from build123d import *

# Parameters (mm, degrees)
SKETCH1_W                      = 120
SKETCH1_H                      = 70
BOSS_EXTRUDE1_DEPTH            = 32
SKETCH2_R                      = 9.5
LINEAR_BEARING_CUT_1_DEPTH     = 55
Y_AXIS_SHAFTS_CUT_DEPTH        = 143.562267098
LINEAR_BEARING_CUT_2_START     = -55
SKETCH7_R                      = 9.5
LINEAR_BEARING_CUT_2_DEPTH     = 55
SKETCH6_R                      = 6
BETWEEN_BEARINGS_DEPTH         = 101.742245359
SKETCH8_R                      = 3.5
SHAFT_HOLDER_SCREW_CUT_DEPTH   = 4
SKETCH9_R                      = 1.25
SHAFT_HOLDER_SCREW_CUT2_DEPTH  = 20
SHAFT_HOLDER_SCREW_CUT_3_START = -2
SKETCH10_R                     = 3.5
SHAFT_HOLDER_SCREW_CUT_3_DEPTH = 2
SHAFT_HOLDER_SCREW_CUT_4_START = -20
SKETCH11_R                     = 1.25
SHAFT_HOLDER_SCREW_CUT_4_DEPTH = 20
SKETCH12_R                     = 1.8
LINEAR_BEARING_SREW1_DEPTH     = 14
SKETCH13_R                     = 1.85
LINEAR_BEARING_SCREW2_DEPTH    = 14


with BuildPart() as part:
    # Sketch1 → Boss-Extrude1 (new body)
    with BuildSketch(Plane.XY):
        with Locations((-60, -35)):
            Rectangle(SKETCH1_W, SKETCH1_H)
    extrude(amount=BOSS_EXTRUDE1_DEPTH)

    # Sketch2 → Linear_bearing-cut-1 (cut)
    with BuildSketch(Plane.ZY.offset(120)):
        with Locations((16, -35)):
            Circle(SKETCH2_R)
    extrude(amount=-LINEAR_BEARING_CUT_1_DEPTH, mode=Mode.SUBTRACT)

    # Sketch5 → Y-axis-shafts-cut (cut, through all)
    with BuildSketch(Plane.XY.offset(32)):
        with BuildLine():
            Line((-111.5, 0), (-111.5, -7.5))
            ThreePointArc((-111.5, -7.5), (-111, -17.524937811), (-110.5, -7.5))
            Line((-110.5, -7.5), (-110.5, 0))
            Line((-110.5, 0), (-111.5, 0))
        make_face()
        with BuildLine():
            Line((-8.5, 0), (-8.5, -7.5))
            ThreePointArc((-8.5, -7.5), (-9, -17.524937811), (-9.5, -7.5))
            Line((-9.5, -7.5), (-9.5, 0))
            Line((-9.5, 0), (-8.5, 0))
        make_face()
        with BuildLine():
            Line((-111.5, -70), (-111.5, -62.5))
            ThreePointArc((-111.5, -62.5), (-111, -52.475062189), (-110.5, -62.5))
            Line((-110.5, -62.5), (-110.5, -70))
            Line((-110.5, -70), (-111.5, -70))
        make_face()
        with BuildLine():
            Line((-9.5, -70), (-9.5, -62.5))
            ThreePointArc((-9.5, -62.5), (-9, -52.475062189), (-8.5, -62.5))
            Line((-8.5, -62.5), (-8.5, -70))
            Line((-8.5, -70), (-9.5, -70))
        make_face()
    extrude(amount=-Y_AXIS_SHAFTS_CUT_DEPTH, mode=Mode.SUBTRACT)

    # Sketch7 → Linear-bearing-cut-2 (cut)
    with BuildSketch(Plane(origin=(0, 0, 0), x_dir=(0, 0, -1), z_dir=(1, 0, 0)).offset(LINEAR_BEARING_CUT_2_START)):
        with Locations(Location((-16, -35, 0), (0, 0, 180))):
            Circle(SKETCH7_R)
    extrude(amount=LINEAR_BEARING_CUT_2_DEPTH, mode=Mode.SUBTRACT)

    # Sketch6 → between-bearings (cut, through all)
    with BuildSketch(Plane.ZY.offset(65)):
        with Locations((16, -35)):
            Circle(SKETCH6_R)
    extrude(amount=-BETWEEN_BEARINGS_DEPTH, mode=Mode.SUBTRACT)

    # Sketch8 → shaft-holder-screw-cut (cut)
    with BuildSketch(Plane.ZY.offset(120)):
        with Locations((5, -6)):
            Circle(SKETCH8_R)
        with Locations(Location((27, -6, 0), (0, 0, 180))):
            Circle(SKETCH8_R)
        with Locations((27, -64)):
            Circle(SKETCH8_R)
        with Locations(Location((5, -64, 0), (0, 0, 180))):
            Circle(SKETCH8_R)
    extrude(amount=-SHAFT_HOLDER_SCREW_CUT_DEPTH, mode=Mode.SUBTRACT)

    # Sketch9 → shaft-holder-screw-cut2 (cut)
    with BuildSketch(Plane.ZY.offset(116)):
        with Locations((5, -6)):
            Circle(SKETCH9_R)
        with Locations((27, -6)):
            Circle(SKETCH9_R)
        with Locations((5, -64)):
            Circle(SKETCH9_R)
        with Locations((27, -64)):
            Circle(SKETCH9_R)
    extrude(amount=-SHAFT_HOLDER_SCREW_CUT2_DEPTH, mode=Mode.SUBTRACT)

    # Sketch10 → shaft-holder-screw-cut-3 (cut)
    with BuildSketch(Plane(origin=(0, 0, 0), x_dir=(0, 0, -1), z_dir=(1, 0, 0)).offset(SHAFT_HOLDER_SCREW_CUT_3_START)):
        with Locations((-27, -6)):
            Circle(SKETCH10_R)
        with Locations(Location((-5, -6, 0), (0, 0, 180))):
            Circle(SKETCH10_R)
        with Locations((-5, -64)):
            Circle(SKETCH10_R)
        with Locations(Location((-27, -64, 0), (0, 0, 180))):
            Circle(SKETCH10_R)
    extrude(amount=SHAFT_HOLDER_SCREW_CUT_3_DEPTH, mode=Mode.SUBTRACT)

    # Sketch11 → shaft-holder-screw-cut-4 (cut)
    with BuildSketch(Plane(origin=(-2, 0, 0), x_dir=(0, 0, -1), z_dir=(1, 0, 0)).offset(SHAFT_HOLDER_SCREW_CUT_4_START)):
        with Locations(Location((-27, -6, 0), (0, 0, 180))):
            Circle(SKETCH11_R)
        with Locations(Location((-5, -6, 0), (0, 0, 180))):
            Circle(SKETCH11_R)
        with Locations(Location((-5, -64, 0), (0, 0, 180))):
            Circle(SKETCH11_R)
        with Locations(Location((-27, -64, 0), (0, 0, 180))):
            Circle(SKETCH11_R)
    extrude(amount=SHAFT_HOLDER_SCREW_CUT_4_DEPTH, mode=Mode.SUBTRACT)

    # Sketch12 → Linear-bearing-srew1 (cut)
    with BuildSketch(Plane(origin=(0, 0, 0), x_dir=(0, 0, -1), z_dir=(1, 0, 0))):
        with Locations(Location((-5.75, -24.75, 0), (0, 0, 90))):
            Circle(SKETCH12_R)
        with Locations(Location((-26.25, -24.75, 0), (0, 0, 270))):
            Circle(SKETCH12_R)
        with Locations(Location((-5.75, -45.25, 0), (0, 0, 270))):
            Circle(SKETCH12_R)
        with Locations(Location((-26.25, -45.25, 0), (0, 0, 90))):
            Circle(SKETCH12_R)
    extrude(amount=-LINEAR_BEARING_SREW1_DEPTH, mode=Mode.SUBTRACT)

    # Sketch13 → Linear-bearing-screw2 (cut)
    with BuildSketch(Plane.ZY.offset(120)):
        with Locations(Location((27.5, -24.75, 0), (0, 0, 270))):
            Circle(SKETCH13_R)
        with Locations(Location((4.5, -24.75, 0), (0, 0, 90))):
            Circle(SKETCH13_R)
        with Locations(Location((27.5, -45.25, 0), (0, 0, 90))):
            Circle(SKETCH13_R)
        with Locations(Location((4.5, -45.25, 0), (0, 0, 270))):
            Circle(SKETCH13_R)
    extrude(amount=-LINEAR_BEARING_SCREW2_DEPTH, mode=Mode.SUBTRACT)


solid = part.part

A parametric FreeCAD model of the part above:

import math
import FreeCAD as App
import Part
import Sketcher
from FreeCAD import Vector
Q = App.Units.Quantity

doc = App.newDocument("Part")
body = doc.addObject("PartDesign::Body", "Body")

# Sketch on XY plane
sketch1 = doc.addObject("Sketcher::SketchObject", "Sketch")
body.addObject(sketch1)
sketch1.AttachmentSupport = (doc.XY_Plane, [""])
sketch1.MapMode = "FlatFace"
sketch1.addGeometry([
    Part.LineSegment(Vector(-120, 0, 0), Vector(-120, -70, 0)),
    Part.LineSegment(Vector(-120, -70, 0), Vector(0, -70, 0)),
    Part.LineSegment(Vector(0, -70, 0), Vector(0, 0, 0)),
    Part.LineSegment(Vector(0, 0, 0), Vector(-120, 0, 0)),
], False)
sketch1.addConstraint([
    Sketcher.Constraint("Coincident", 0, 2, 1, 1),
    Sketcher.Constraint("Coincident", 1, 2, 2, 1),
    Sketcher.Constraint("Coincident", 2, 2, 3, 1),
    Sketcher.Constraint("Coincident", 3, 2, 0, 1),
    Sketcher.Constraint("Vertical", 0),
    Sketcher.Constraint("Horizontal", 1),
    Sketcher.Constraint("Vertical", 2),
    Sketcher.Constraint("Horizontal", 3),
    Sketcher.Constraint("Coincident", 2, 2, -1, 1),
    Sketcher.Constraint("DistanceX", 1, 1, 1, 2, Q("120 mm")),
    Sketcher.Constraint("DistanceY", 0, 2, 0, 1, Q("70 mm")),
])
pad1 = doc.addObject("PartDesign::Pad", "Pad")
body.addObject(pad1)
pad1.Profile = sketch1
pad1.Length = 32

# Sketch on YZ plane
sketch2 = doc.addObject("Sketcher::SketchObject", "Sketch001")
body.addObject(sketch2)
sketch2.AttachmentSupport = (doc.YZ_Plane, [""])
sketch2.MapMode = "FlatFace"
sketch2.AttachmentOffset = App.Placement(Vector(0, 0, -120), App.Rotation())
sketch2.addGeometry(Part.Circle(Vector(-35, 16, 0), Vector(0, 0, 1), 10), False)
sketch2.addConstraint([
    Sketcher.Constraint("Diameter", 0, Q("19 mm")),
    Sketcher.Constraint("DistanceX", 0, 3, -1, 1, Q("35 mm")),
    Sketcher.Constraint("DistanceY", -1, 1, 0, 3, Q("16 mm")),
])
pocket1 = doc.addObject("PartDesign::Pocket", "Pocket")
body.addObject(pocket1)
pocket1.Profile = sketch2
pocket1.Length = 55
pocket1.Reversed = True

# Sketch on XY plane
sketch3 = doc.addObject("Sketcher::SketchObject", "Sketch002")
body.addObject(sketch3)
sketch3.AttachmentSupport = (doc.XY_Plane, [""])
sketch3.MapMode = "FlatFace"
sketch3.AttachmentOffset = App.Placement(Vector(0, 0, 32), App.Rotation())
sketch3.addGeometry([
    Part.LineSegment(Vector(-111.5, 0, 0), Vector(-111.5, -7.5, 0)),  # 0
    Part.ArcOfCircle(Part.Circle(Vector(-111, -12.5, 0), Vector(0, 0, 1), 5), math.radians(96), math.radians(444)),  # 1
    Part.LineSegment(Vector(-110.5, -7.5, 0), Vector(-110.5, 0, 0)),  # 2
    Part.LineSegment(Vector(-110.5, 0, 0), Vector(-111.5, 0, 0)),  # 3
    Part.LineSegment(Vector(-8.5, -7.5, 0), Vector(-8.5, 0, 0)),  # 4
    Part.LineSegment(Vector(-8.5, 0, 0), Vector(-9.5, 0, 0)),  # 5
    Part.LineSegment(Vector(-9.5, 0, 0), Vector(-9.5, -7.5, 0)),  # 6
    Part.ArcOfCircle(Part.Circle(Vector(-9, -12.5, 0), Vector(0, 0, 1), 5), math.radians(96), math.radians(444)),  # 7
    Part.LineSegment(Vector(-111.5, -62.5, 0), Vector(-111.5, -70, 0)),  # 8
    Part.LineSegment(Vector(-111.5, -70, 0), Vector(-110.5, -70, 0)),  # 9
    Part.LineSegment(Vector(-110.5, -70, 0), Vector(-110.5, -62.5, 0)),  # 10
    Part.ArcOfCircle(Part.Circle(Vector(-111, -57.5, 0), Vector(0, 0, 1), 5), math.radians(-84), math.radians(264)),  # 11
    Part.LineSegment(Vector(-9.5, -62.5, 0), Vector(-9.5, -70, 0)),  # 12
    Part.LineSegment(Vector(-9.5, -70, 0), Vector(-8.5, -70, 0)),  # 13
    Part.LineSegment(Vector(-8.5, -70, 0), Vector(-8.5, -62.5, 0)),  # 14
    Part.ArcOfCircle(Part.Circle(Vector(-9, -57.5, 0), Vector(0, 0, 1), 5), math.radians(-84), math.radians(264)),  # 15
], False)
sketch3.addConstraint([
    Sketcher.Constraint("Coincident", 0, 2, 1, 1),
    Sketcher.Constraint("Coincident", 1, 2, 2, 1),
    Sketcher.Constraint("Coincident", 2, 2, 3, 1),
    Sketcher.Constraint("Coincident", 3, 2, 0, 1),
    Sketcher.Constraint("Coincident", 4, 2, 5, 1),
    Sketcher.Constraint("Coincident", 5, 2, 6, 1),
    Sketcher.Constraint("Coincident", 6, 2, 7, 1),
    Sketcher.Constraint("Coincident", 7, 2, 4, 1),
    Sketcher.Constraint("Coincident", 8, 2, 9, 1),
    Sketcher.Constraint("Coincident", 9, 2, 10, 1),
    Sketcher.Constraint("Coincident", 10, 2, 11, 1),
    Sketcher.Constraint("Coincident", 11, 2, 8, 1),
    Sketcher.Constraint("Coincident", 12, 2, 13, 1),
    Sketcher.Constraint("Coincident", 13, 2, 14, 1),
    Sketcher.Constraint("Coincident", 14, 2, 15, 1),
    Sketcher.Constraint("Coincident", 15, 2, 12, 1),
    Sketcher.Constraint("Vertical", 0),
    Sketcher.Constraint("Vertical", 2),
    Sketcher.Constraint("Horizontal", 3),
    Sketcher.Constraint("Vertical", 4),
    Sketcher.Constraint("Horizontal", 5),
    Sketcher.Constraint("Vertical", 6),
    Sketcher.Constraint("Vertical", 8),
    Sketcher.Constraint("Horizontal", 9),
    Sketcher.Constraint("Vertical", 10),
    Sketcher.Constraint("Vertical", 12),
    Sketcher.Constraint("Horizontal", 13),
    Sketcher.Constraint("Vertical", 14),
    Sketcher.Constraint("Equal", 1, 7),
    Sketcher.Constraint("Equal", 7, 11),
    Sketcher.Constraint("Equal", 11, 15),
    Sketcher.Constraint("PointOnObject", 2, 2, -1),
    Sketcher.Constraint("PointOnObject", 4, 2, -1),
    Sketcher.Constraint("Horizontal", 1, 3, 7, 3),
    Sketcher.Constraint("Horizontal", 11, 3, 15, 3),
    Sketcher.Constraint("Horizontal", 0, 2, 1, 2),
    Sketcher.Constraint("Horizontal", 1, 2, 6, 2),
    Sketcher.Constraint("Horizontal", 6, 2, 7, 2),
    Sketcher.Constraint("Horizontal", 10, 2, 11, 2),
    Sketcher.Constraint("Horizontal", 9, 2, 12, 2),
    Sketcher.Constraint("Horizontal", 11, 2, 14, 2),
    Sketcher.Constraint("Horizontal", 14, 2, 15, 2),
    Sketcher.Constraint("Vertical", 1, 3, 11, 3),
    Sketcher.Constraint("Vertical", 7, 3, 15, 3),
    Sketcher.Constraint("Vertical", 3, 2, 8, 2),
    Sketcher.Constraint("Equal", 6, 8),
    Sketcher.Constraint("DistanceX", 3, 2, 3, 1, Q("1 mm")),
    Sketcher.Constraint("DistanceY", 0, 2, 0, 1, Q("7.5 mm")),
    Sketcher.Constraint("DistanceX", 1, 3, -1, 1, Q("111 mm")),
    Sketcher.Constraint("DistanceX", 7, 3, -1, 1, Q("9 mm")),
    Sketcher.Constraint("DistanceY", 8, 2, -1, 1, Q("70 mm")),
    Sketcher.Constraint("DistanceY", 11, 3, 1, 3, Q("45 mm")),
])
pocket2 = doc.addObject("PartDesign::Pocket", "Pocket001")
body.addObject(pocket2)
pocket2.Profile = sketch3
pocket2.Type = "ThroughAll"

# Sketch on YZ plane
sketch4 = doc.addObject("Sketcher::SketchObject", "Sketch003")
body.addObject(sketch4)
sketch4.AttachmentSupport = (doc.YZ_Plane, [""])
sketch4.MapMode = "FlatFace"
sketch4.AttachmentOffset = App.Placement(Vector(0, 0, -55), App.Rotation())
sketch4.addGeometry(Part.Circle(Vector(-35, 16, 0), Vector(0, 0, 1), 10), False)
sketch4.addConstraint([
    Sketcher.Constraint("Diameter", 0, Q("19 mm")),
    Sketcher.Constraint("DistanceX", 0, 3, -1, 1, Q("35 mm")),
    Sketcher.Constraint("DistanceY", -1, 1, 0, 3, Q("16 mm")),
])
pocket3 = doc.addObject("PartDesign::Pocket", "Pocket002")
body.addObject(pocket3)
pocket3.Profile = sketch4
pocket3.Length = 55
pocket3.Reversed = True

# Sketch on YZ plane
sketch5 = doc.addObject("Sketcher::SketchObject", "Sketch004")
body.addObject(sketch5)
sketch5.AttachmentSupport = (doc.YZ_Plane, [""])
sketch5.MapMode = "FlatFace"
sketch5.AttachmentOffset = App.Placement(Vector(0, 0, -65), App.Rotation())
sketch5.addGeometry(Part.Circle(Vector(-35, 16, 0), Vector(0, 0, 1), 6), False)
sketch5.addConstraint([
    Sketcher.Constraint("Diameter", 0, Q("12 mm")),
    Sketcher.Constraint("DistanceX", 0, 3, -1, 1, Q("35 mm")),
    Sketcher.Constraint("DistanceY", -1, 1, 0, 3, Q("16 mm")),
])
pocket4 = doc.addObject("PartDesign::Pocket", "Pocket003")
body.addObject(pocket4)
pocket4.Profile = sketch5
pocket4.Type = "ThroughAll"
pocket4.Reversed = True

# Sketch on YZ plane
sketch6 = doc.addObject("Sketcher::SketchObject", "Sketch005")
body.addObject(sketch6)
sketch6.AttachmentSupport = (doc.YZ_Plane, [""])
sketch6.MapMode = "FlatFace"
sketch6.AttachmentOffset = App.Placement(Vector(0, 0, -120), App.Rotation())
sketch6.addGeometry([
    Part.Circle(Vector(-6, 5, 0), Vector(0, 0, 1), 3.5),
    Part.Circle(Vector(-6, 27, 0), Vector(0, 0, 1), 3.5),
    Part.Circle(Vector(-64, 27, 0), Vector(0, 0, 1), 3.5),
    Part.Circle(Vector(-64, 5, 0), Vector(0, 0, 1), 3.5),
], False)
sketch6.addConstraint([
    Sketcher.Constraint("Equal", 0, 1),
    Sketcher.Constraint("Equal", 1, 2),
    Sketcher.Constraint("Equal", 2, 3),
    Sketcher.Constraint("Horizontal", 1, 3, 2, 3),
    Sketcher.Constraint("Horizontal", 0, 3, 3, 3),
    Sketcher.Constraint("Vertical", 0, 3, 1, 3),
    Sketcher.Constraint("Vertical", 2, 3, 3, 3),
    Sketcher.Constraint("Diameter", 0, Q("7 mm")),
    Sketcher.Constraint("DistanceX", 0, 3, -1, 1, Q("6 mm")),
    Sketcher.Constraint("DistanceY", -1, 1, 0, 3, Q("5 mm")),
    Sketcher.Constraint("DistanceY", -1, 1, 1, 3, Q("27 mm")),
    Sketcher.Constraint("DistanceX", 2, 3, -1, 1, Q("64 mm")),
])
pocket5 = doc.addObject("PartDesign::Pocket", "Pocket004")
body.addObject(pocket5)
pocket5.Profile = sketch6
pocket5.Length = 4
pocket5.Reversed = True

# Sketch on YZ plane
sketch7 = doc.addObject("Sketcher::SketchObject", "Sketch006")
body.addObject(sketch7)
sketch7.AttachmentSupport = (doc.YZ_Plane, [""])
sketch7.MapMode = "FlatFace"
sketch7.AttachmentOffset = App.Placement(Vector(0, 0, -116), App.Rotation())
sketch7.addGeometry([
    Part.Circle(Vector(-6, 5, 0), Vector(0, 0, 1), 1.2),
    Part.Circle(Vector(-6, 27, 0), Vector(0, 0, 1), 1.2),
    Part.Circle(Vector(-64, 5, 0), Vector(0, 0, 1), 1.2),
    Part.Circle(Vector(-64, 27, 0), Vector(0, 0, 1), 1.2),
], False)
sketch7.addConstraint([
    Sketcher.Constraint("Equal", 0, 1),
    Sketcher.Constraint("Equal", 1, 2),
    Sketcher.Constraint("Equal", 2, 3),
    Sketcher.Constraint("Horizontal", 0, 3, 2, 3),
    Sketcher.Constraint("Horizontal", 1, 3, 3, 3),
    Sketcher.Constraint("Vertical", 0, 3, 1, 3),
    Sketcher.Constraint("Vertical", 2, 3, 3, 3),
    Sketcher.Constraint("Diameter", 0, Q("2.5 mm")),
    Sketcher.Constraint("DistanceX", 0, 3, -1, 1, Q("6 mm")),
    Sketcher.Constraint("DistanceY", -1, 1, 0, 3, Q("5 mm")),
    Sketcher.Constraint("DistanceY", -1, 1, 1, 3, Q("27 mm")),
    Sketcher.Constraint("DistanceX", 2, 3, -1, 1, Q("64 mm")),
])
pocket6 = doc.addObject("PartDesign::Pocket", "Pocket005")
body.addObject(pocket6)
pocket6.Profile = sketch7
pocket6.Length = 20
pocket6.Reversed = True

# Sketch on YZ plane
sketch8 = doc.addObject("Sketcher::SketchObject", "Sketch007")
body.addObject(sketch8)
sketch8.AttachmentSupport = (doc.YZ_Plane, [""])
sketch8.MapMode = "FlatFace"
sketch8.AttachmentOffset = App.Placement(Vector(0, 0, -2), App.Rotation())
sketch8.addGeometry([
    Part.Circle(Vector(-6, 27, 0), Vector(0, 0, 1), 3.5),
    Part.Circle(Vector(-6, 5, 0), Vector(0, 0, 1), 3.5),
    Part.Circle(Vector(-64, 5, 0), Vector(0, 0, 1), 3.5),
    Part.Circle(Vector(-64, 27, 0), Vector(0, 0, 1), 3.5),
], False)
sketch8.addConstraint([
    Sketcher.Constraint("Equal", 0, 1),
    Sketcher.Constraint("Equal", 1, 2),
    Sketcher.Constraint("Equal", 2, 3),
    Sketcher.Constraint("Horizontal", 1, 3, 2, 3),
    Sketcher.Constraint("Horizontal", 0, 3, 3, 3),
    Sketcher.Constraint("Vertical", 0, 3, 1, 3),
    Sketcher.Constraint("Vertical", 2, 3, 3, 3),
    Sketcher.Constraint("Diameter", 0, Q("7 mm")),
    Sketcher.Constraint("DistanceX", 0, 3, -1, 1, Q("6 mm")),
    Sketcher.Constraint("DistanceY", -1, 1, 0, 3, Q("27 mm")),
    Sketcher.Constraint("DistanceY", -1, 1, 1, 3, Q("5 mm")),
    Sketcher.Constraint("DistanceX", 2, 3, -1, 1, Q("64 mm")),
])
pocket7 = doc.addObject("PartDesign::Pocket", "Pocket006")
body.addObject(pocket7)
pocket7.Profile = sketch8
pocket7.Length = 2
pocket7.Reversed = True

# Sketch on YZ plane
sketch9 = doc.addObject("Sketcher::SketchObject", "Sketch008")
body.addObject(sketch9)
sketch9.AttachmentSupport = (doc.YZ_Plane, [""])
sketch9.MapMode = "FlatFace"
sketch9.AttachmentOffset = App.Placement(Vector(0, 0, -22), App.Rotation())
sketch9.addGeometry([
    Part.Circle(Vector(-6, 27, 0), Vector(0, 0, 1), 1.2),
    Part.Circle(Vector(-6, 5, 0), Vector(0, 0, 1), 1.2),
    Part.Circle(Vector(-64, 5, 0), Vector(0, 0, 1), 1.2),
    Part.Circle(Vector(-64, 27, 0), Vector(0, 0, 1), 1.2),
], False)
sketch9.addConstraint([
    Sketcher.Constraint("Equal", 0, 1),
    Sketcher.Constraint("Equal", 1, 2),
    Sketcher.Constraint("Equal", 2, 3),
    Sketcher.Constraint("Horizontal", 1, 3, 2, 3),
    Sketcher.Constraint("Horizontal", 0, 3, 3, 3),
    Sketcher.Constraint("Vertical", 0, 3, 1, 3),
    Sketcher.Constraint("Vertical", 2, 3, 3, 3),
    Sketcher.Constraint("Diameter", 0, Q("2.5 mm")),
    Sketcher.Constraint("DistanceX", 0, 3, -1, 1, Q("6 mm")),
    Sketcher.Constraint("DistanceY", -1, 1, 0, 3, Q("27 mm")),
    Sketcher.Constraint("DistanceY", -1, 1, 1, 3, Q("5 mm")),
    Sketcher.Constraint("DistanceX", 2, 3, -1, 1, Q("64 mm")),
])
pocket8 = doc.addObject("PartDesign::Pocket", "Pocket007")
body.addObject(pocket8)
pocket8.Profile = sketch9
pocket8.Length = 20
pocket8.Reversed = True

# Sketch on YZ plane
sketch10 = doc.addObject("Sketcher::SketchObject", "Sketch009")
body.addObject(sketch10)
sketch10.AttachmentSupport = (doc.YZ_Plane, [""])
sketch10.MapMode = "FlatFace"
sketch10.addGeometry([
    Part.Circle(Vector(-24.8, 5.8, 0), Vector(0, 0, 1), 1.8),
    Part.Circle(Vector(-24.8, 26.2, 0), Vector(0, 0, 1), 1.8),
    Part.Circle(Vector(-45.2, 5.8, 0), Vector(0, 0, 1), 1.8),
    Part.Circle(Vector(-45.2, 26.2, 0), Vector(0, 0, 1), 1.8),
], False)
sketch10.addConstraint([
    Sketcher.Constraint("Equal", 0, 1),
    Sketcher.Constraint("Equal", 1, 2),
    Sketcher.Constraint("Equal", 2, 3),
    Sketcher.Constraint("Horizontal", 0, 3, 2, 3),
    Sketcher.Constraint("Horizontal", 1, 3, 3, 3),
    Sketcher.Constraint("Vertical", 0, 3, 1, 3),
    Sketcher.Constraint("Vertical", 2, 3, 3, 3),
    Sketcher.Constraint("Diameter", 0, Q("3.6 mm")),
    Sketcher.Constraint("DistanceY", 0, 3, 1, 3, Q("20.5 mm")),
    Sketcher.Constraint("DistanceX", 2, 3, 0, 3, Q("20.5 mm")),
    Sketcher.Constraint("DistanceX", 0, 3, -1, 1, Q("24.75 mm")),
    Sketcher.Constraint("DistanceY", -1, 1, 0, 3, Q("5.75 mm")),
])
pocket9 = doc.addObject("PartDesign::Pocket", "Pocket008")
body.addObject(pocket9)
pocket9.Profile = sketch10
pocket9.Length = 14

# Sketch on YZ plane
sketch11 = doc.addObject("Sketcher::SketchObject", "Sketch010")
body.addObject(sketch11)
sketch11.AttachmentSupport = (doc.YZ_Plane, [""])
sketch11.MapMode = "FlatFace"
sketch11.AttachmentOffset = App.Placement(Vector(0, 0, -120), App.Rotation())
sketch11.addGeometry([
    Part.Circle(Vector(-24.8, 27.5, 0), Vector(0, 0, 1), 1.9),
    Part.Circle(Vector(-24.8, 4.5, 0), Vector(0, 0, 1), 1.9),
    Part.Circle(Vector(-45.2, 27.5, 0), Vector(0, 0, 1), 1.9),
    Part.Circle(Vector(-45.2, 4.5, 0), Vector(0, 0, 1), 1.9),
], False)
sketch11.addConstraint([
    Sketcher.Constraint("Equal", 0, 1),
    Sketcher.Constraint("Equal", 1, 2),
    Sketcher.Constraint("Equal", 2, 3),
    Sketcher.Constraint("Horizontal", 0, 3, 2, 3),
    Sketcher.Constraint("Horizontal", 1, 3, 3, 3),
    Sketcher.Constraint("Vertical", 0, 3, 1, 3),
    Sketcher.Constraint("Vertical", 2, 3, 3, 3),
    Sketcher.Constraint("Diameter", 0, Q("3.7 mm")),
    Sketcher.Constraint("DistanceY", 1, 3, 0, 3, Q("23 mm")),
    Sketcher.Constraint("DistanceY", -1, 1, 0, 3, Q("27.5 mm")),
    Sketcher.Constraint("DistanceX", 2, 3, 0, 3, Q("20.5 mm")),
    Sketcher.Constraint("DistanceX", 0, 3, -1, 1, Q("24.75 mm")),
])
pocket10 = doc.addObject("PartDesign::Pocket", "Pocket009")
body.addObject(pocket10)
pocket10.Profile = sketch11
pocket10.Length = 14
pocket10.Reversed = True

doc.recompute()
